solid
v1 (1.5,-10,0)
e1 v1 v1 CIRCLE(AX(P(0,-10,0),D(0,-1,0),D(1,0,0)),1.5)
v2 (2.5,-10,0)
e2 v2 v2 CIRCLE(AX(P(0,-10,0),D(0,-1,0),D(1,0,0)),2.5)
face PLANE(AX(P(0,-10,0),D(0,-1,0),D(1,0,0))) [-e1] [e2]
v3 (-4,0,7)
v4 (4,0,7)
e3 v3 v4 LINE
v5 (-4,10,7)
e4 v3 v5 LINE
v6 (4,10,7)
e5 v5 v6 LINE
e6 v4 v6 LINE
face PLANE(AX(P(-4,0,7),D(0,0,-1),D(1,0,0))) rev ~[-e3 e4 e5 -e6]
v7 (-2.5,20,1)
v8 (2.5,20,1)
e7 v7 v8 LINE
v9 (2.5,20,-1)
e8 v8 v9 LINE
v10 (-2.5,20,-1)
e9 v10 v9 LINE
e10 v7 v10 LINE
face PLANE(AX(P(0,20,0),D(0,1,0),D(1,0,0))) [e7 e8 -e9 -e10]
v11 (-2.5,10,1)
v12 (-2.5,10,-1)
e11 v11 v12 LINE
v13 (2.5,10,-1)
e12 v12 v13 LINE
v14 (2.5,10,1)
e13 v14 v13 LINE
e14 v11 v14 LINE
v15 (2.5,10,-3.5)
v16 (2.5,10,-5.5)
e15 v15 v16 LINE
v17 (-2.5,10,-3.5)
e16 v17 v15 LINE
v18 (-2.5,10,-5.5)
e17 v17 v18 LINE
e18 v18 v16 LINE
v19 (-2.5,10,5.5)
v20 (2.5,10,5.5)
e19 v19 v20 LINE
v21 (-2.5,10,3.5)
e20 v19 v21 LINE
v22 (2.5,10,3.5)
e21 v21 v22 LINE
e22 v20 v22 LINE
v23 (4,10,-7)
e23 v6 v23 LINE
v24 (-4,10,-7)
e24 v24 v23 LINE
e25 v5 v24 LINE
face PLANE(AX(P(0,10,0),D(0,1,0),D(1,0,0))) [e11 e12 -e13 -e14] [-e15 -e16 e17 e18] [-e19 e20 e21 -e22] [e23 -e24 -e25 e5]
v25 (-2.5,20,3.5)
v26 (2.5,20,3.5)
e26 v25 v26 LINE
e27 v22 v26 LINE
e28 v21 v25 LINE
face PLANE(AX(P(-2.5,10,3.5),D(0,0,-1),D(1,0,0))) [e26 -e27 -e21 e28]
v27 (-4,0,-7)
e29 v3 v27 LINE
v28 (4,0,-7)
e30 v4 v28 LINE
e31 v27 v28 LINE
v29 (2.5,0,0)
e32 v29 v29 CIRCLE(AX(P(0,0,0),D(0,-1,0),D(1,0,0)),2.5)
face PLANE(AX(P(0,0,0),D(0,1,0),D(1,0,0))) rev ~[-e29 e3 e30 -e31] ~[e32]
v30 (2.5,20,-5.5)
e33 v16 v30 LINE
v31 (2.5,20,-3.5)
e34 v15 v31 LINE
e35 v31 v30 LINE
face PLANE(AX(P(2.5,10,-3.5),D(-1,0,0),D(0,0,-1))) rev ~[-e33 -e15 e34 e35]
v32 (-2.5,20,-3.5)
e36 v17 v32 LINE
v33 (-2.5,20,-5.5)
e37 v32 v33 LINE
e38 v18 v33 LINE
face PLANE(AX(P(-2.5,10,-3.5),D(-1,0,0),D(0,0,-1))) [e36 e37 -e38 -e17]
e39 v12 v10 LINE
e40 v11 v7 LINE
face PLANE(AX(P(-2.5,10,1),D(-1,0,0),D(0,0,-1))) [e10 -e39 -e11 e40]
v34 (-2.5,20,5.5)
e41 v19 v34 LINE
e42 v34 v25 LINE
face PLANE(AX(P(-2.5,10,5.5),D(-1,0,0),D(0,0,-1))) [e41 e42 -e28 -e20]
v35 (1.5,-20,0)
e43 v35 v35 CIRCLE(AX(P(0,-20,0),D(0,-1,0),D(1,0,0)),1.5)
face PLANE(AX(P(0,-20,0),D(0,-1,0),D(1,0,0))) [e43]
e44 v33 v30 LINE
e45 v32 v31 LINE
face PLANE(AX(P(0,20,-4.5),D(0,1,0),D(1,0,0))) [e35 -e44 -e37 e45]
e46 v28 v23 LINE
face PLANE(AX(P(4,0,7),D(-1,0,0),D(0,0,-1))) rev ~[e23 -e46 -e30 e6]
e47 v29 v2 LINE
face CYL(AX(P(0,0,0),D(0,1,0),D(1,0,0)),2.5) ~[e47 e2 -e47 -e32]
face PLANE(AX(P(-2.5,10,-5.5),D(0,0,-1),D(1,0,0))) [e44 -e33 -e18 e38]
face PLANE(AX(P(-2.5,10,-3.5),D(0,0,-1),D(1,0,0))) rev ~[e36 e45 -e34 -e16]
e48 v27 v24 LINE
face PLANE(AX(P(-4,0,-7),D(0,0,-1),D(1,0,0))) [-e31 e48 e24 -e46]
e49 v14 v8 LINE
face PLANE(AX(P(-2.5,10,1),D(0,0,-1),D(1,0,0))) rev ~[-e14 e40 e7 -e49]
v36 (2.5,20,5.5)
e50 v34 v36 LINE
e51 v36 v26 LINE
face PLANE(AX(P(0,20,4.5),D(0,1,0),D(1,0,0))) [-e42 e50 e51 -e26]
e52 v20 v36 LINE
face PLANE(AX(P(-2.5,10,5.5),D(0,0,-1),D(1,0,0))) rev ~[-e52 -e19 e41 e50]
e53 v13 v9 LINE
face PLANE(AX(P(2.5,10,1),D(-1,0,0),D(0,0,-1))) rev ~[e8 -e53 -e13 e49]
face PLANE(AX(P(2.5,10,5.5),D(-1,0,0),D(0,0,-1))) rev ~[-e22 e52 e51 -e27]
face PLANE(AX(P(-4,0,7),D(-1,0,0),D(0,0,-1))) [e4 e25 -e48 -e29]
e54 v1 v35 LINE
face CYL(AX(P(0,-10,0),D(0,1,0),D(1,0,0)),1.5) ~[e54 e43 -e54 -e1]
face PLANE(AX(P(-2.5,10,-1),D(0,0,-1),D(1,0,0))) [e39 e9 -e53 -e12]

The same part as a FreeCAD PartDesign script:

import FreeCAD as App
import Part
import Sketcher

V = App.Vector
Q = App.Units.Quantity

doc = App.newDocument("Part")
body = doc.addObject("PartDesign::Body", "Body")

# Sketch on XZ plane
sketch1 = body.newObject("Sketcher::SketchObject", "Sketch")
sketch1.AttachmentSupport = (doc.getObject("XZ_Plane"), [""])
sketch1.MapMode = "FlatFace"
sketch1.addGeometry(Part.Circle(V(0, 0, 0), V(0, 0, 1), 2.5), False)
sketch1.addConstraint([
    Sketcher.Constraint("Coincident", 0, 3, -1, 1),
    Sketcher.Constraint("Diameter", 0, Q("5 mm")),
])
pad1 = body.newObject("PartDesign::Pad", "Pad")
pad1.Profile = sketch1
pad1.Length = 10

# Sketch on XZ plane
sketch2 = body.newObject("Sketcher::SketchObject", "Sketch001")
sketch2.AttachmentSupport = (doc.getObject("XZ_Plane"), [""])
sketch2.MapMode = "FlatFace"
sketch2.AttachmentOffset = App.Placement(V(0, 0, 10), App.Rotation())
sketch2.addGeometry(Part.Circle(V(0, 0, 0), V(0, 0, 1), 1.5), False)
sketch2.addConstraint([
    Sketcher.Constraint("Coincident", 0, 3, -1, 1),
    Sketcher.Constraint("Diameter", 0, Q("3 mm")),
])
pad2 = body.newObject("PartDesign::Pad", "Pad001")
pad2.Profile = sketch2
pad2.Length = 10

# Sketch on XZ plane
sketch3 = body.newObject("Sketcher::SketchObject", "Sketch002")
sketch3.AttachmentSupport = (doc.getObject("XZ_Plane"), [""])
sketch3.MapMode = "FlatFace"
sketch3.addGeometry([
    Part.LineSegment(V(-4, -7, 0), V(-4, 7, 0)),
    Part.LineSegment(V(-4, 7, 0), V(4, 7, 0)),
    Part.LineSegment(V(4, 7, 0), V(4, -7, 0)),
    Part.LineSegment(V(4, -7, 0), V(-4, -7, 0)),
], False)
sketch3.addConstraint([
    Sketcher.Constraint("Coincident", 0, 2, 1, 1),
    Sketcher.Constraint("Coincident", 1, 2, 2, 1),
    Sketcher.Constraint("Coincident", 2, 2, 3, 1),
    Sketcher.Constraint("Coincident", 3, 2, 0, 1),
    Sketcher.Constraint("Vertical", 0),
    Sketcher.Constraint("Horizontal", 1),
    Sketcher.Constraint("Vertical", 2),
    Sketcher.Constraint("Horizontal", 3),
    Sketcher.Constraint("Symmetric", 0, 2, 2, 2, -1, 1),
    Sketcher.Constraint("DistanceX", 1, 1, 1, 2, Q("8 mm")),
    Sketcher.Constraint("DistanceY", 0, 1, 0, 2, Q("14 mm")),
])
pad3 = body.newObject("PartDesign::Pad", "Pad002")
pad3.Profile = sketch3
pad3.Length = 10
pad3.Reversed = True

# Sketch on XZ plane
sketch4 = body.newObject("Sketcher::SketchObject", "Sketch003")
sketch4.AttachmentSupport = (doc.getObject("XZ_Plane"), [""])
sketch4.MapMode = "FlatFace"
sketch4.AttachmentOffset = App.Placement(V(0, 0, -10), App.Rotation())
sketch4.addGeometry([
    Part.LineSegment(V(-2.5, -5.5, 0), V(-2.5, -3.5, 0)),  # 0
    Part.LineSegment(V(-2.5, -3.5, 0), V(2.5, -3.5, 0)),  # 1
    Part.LineSegment(V(2.5, -3.5, 0), V(2.5, -5.5, 0)),  # 2
    Part.LineSegment(V(2.5, -5.5, 0), V(-2.5, -5.5, 0)),  # 3
    Part.LineSegment(V(-2.5, -1, 0), V(-2.5, 1, 0)),  # 4
    Part.LineSegment(V(-2.5, 1, 0), V(2.5, 1, 0)),  # 5
    Part.LineSegment(V(2.5, 1, 0), V(2.5, -1, 0)),  # 6
    Part.LineSegment(V(2.5, -1, 0), V(-2.5, -1, 0)),  # 7
    Part.LineSegment(V(-2.5, 3.5, 0), V(-2.5, 5.5, 0)),  # 8
    Part.LineSegment(V(-2.5, 5.5, 0), V(2.5, 5.5, 0)),  # 9
    Part.LineSegment(V(2.5, 5.5, 0), V(2.5, 3.5, 0)),  # 10
    Part.LineSegment(V(2.5, 3.5, 0), V(-2.5, 3.5, 0)),  # 11
], False)
sketch4.addConstraint([
    Sketcher.Constraint("Coincident", 0, 2, 1, 1),
    Sketcher.Constraint("Coincident", 1, 2, 2, 1),
    Sketcher.Constraint("Coincident", 2, 2, 3, 1),
    Sketcher.Constraint("Coincident", 3, 2, 0, 1),
    Sketcher.Constraint("Coincident", 4, 2, 5, 1),
    Sketcher.Constraint("Coincident", 5, 2, 6, 1),
    Sketcher.Constraint("Coincident", 6, 2, 7, 1),
    Sketcher.Constraint("Coincident", 7, 2, 4, 1),
    Sketcher.Constraint("Coincident", 8, 2, 9, 1),
    Sketcher.Constraint("Coincident", 9, 2, 10, 1),
    Sketcher.Constraint("Coincident", 10, 2, 11, 1),
    Sketcher.Constraint("Coincident", 11, 2, 8, 1),
    Sketcher.Constraint("Vertical", 0),
    Sketcher.Constraint("Horizontal", 1),
    Sketcher.Constraint("Vertical", 2),
    Sketcher.Constraint("Horizontal", 3),
    Sketcher.Constraint("Vertical", 4),
    Sketcher.Constraint("Horizontal", 5),
    Sketcher.Constraint("Vertical", 6),
    Sketcher.Constraint("Horizontal", 7),
    Sketcher.Constraint("Vertical", 8),
    Sketcher.Constraint("Horizontal", 9),
    Sketcher.Constraint("Vertical", 10),
    Sketcher.Constraint("Horizontal", 11),
    Sketcher.Constraint("Symmetric", 4, 2, 6, 2, -1, 1),
    Sketcher.Constraint("Symmetric", 2, 2, 8, 2, -1, 1),
    Sketcher.Constraint("Symmetric", 0, 2, 10, 2, -1, 1),
    Sketcher.Constraint("Vertical", 3, 2, 4, 2),
    Sketcher.Constraint("Vertical", 2, 2, 5, 2),
    Sketcher.Constraint("Equal", 2, 4),
    Sketcher.Constraint("DistanceX", 1, 1, 1, 2, Q("5 mm")),
    Sketcher.Constraint("DistanceY", 0, 1, 0, 2, Q("2 mm")),
    Sketcher.Constraint("DistanceY", 0, 2, 8, 2, Q("9 mm")),
])
pad4 = body.newObject("PartDesign::Pad", "Pad003")
pad4.Profile = sketch4
pad4.Length = 10
pad4.Reversed = True

doc.recompute()
